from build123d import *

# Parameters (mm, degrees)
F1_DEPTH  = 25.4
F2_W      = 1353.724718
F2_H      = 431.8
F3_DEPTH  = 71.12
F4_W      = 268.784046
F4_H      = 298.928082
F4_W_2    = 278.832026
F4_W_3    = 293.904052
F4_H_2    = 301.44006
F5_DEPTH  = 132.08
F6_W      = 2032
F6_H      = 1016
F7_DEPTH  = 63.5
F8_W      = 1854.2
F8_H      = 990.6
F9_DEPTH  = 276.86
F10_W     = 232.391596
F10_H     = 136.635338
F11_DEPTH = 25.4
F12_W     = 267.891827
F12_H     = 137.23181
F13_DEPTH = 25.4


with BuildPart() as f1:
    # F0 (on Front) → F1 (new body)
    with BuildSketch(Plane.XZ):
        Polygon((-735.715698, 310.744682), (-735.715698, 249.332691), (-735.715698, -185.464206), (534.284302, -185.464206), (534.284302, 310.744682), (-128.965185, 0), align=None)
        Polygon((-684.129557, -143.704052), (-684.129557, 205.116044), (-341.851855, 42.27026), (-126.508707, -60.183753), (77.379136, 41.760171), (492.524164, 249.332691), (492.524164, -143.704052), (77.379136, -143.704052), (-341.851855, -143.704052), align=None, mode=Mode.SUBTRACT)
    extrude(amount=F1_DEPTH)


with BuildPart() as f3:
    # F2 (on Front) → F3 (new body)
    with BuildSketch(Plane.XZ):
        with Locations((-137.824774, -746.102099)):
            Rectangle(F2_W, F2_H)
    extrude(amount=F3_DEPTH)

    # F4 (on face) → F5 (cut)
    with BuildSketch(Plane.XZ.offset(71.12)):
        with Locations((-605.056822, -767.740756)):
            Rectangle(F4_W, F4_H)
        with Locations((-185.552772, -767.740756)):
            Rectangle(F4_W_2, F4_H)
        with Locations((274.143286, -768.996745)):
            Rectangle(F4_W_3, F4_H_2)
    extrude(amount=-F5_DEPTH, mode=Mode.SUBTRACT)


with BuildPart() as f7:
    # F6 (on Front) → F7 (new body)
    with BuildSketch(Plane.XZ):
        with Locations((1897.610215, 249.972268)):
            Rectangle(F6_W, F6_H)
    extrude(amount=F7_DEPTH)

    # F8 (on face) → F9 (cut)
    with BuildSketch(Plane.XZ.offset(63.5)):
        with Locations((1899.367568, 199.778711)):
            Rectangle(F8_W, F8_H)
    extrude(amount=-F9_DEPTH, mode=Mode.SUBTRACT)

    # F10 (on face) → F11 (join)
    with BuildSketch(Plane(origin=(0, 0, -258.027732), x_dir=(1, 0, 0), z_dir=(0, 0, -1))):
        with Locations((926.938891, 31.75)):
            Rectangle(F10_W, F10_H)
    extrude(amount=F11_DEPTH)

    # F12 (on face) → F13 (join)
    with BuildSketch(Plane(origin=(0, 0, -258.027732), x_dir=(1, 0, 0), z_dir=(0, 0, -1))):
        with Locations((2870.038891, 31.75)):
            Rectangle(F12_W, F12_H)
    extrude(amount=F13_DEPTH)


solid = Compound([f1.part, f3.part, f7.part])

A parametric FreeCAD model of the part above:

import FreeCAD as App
import Part
import Sketcher
Q = App.Units.Quantity


def add_polygon(sketch, points):
    """Adds a closed chain of lines whose ends are joined by coincident constraints."""
    first, n = sketch.GeometryCount, len(points)
    for a, b in zip(points, points[1:] + points[:1]):
        sketch.addGeometry(Part.LineSegment(App.Vector(*a, 0), App.Vector(*b, 0)), False)
    for i in range(n):
        sketch.addConstraint(Sketcher.Constraint("Coincident", first + i, 2, first + (i + 1) % n, 1))

doc = App.newDocument("Part")
body = doc.addObject("PartDesign::Body", "Body")

# Sketch on XZ plane
sketch1 = doc.addObject("Sketcher::SketchObject", "Sketch")
body.addObject(sketch1)
sketch1.AttachmentSupport = (doc.XZ_Plane, [""])
sketch1.MapMode = "FlatFace"
add_polygon(sketch1, [(-736, 311), (-736, -185), (534, -185), (534, 311), (-129, 0)])  # lines 0-4
add_polygon(sketch1, [(493, -144), (-684, -144), (-684, 205), (-342, 42), (-127, -60), (77, 42), (493, 249)])  # lines 5-11
sketch1.addConstraint(Sketcher.Constraint("Vertical", 0))
sketch1.addConstraint(Sketcher.Constraint("Horizontal", 1))
sketch1.addConstraint(Sketcher.Constraint("Vertical", 2))
sketch1.addConstraint(Sketcher.Constraint("Horizontal", 5))
sketch1.addConstraint(Sketcher.Constraint("Vertical", 6))
sketch1.addConstraint(Sketcher.Constraint("Vertical", 11))
sketch1.addConstraint(Sketcher.Constraint("PointOnObject", 3, 2, -1))
sketch1.addConstraint(Sketcher.Constraint("Parallel", 7, 8))
sketch1.addConstraint(Sketcher.Constraint("Parallel", 9, 10))
sketch1.addConstraint(Sketcher.Constraint("Horizontal", 2, 2, 4, 2))
sketch1.addConstraint(Sketcher.Constraint("DistanceX", 1, 1, 1, 2, Q("50 in")))
sketch1.addConstraint(Sketcher.Constraint("DistanceX", 6, 2, 7, 2, Q("13.4755001 in")))
sketch1.addConstraint(Sketcher.Constraint("DistanceX", 10, 2, 2, 2, Q("1.6440999 in")))
sketch1.addConstraint(Sketcher.Constraint("DistanceX", 5, 2, 5, 1, 1176.653721))
sketch1.addConstraint(Sketcher.Constraint("DistanceY", 0, 2, 0, 1, 496.208888))
sketch1.addConstraint(Sketcher.Constraint("DistanceX", 0, 2, -1, 1, 735.715698))
sketch1.addConstraint(Sketcher.Constraint("DistanceY", 5, 2, 8, 2, 83.520299))
sketch1.addConstraint(Sketcher.Constraint("Distance", 4, 681.695271))
sketch1.addConstraint(Sketcher.Constraint("Distance", 8, 238.473261))
sketch1.addConstraint(Sketcher.Constraint("Distance", 9, 227.953539))
sketch1.addConstraint(Sketcher.Constraint("DistanceY", 6, 1, 6, 2, 348.820096))
sketch1.addConstraint(Sketcher.Constraint("DistanceY", 11, 2, 11, 1, 393.036743))
sketch1.addConstraint(Sketcher.Constraint("DistanceY", -1, 1, 2, 2, 310.744682))
sketch1.addConstraint(Sketcher.Constraint("DistanceY", 5, 2, -1, 1, 143.704052))
pad1 = doc.addObject("PartDesign::Pad", "Pad")
body.addObject(pad1)
pad1.Profile = sketch1
pad1.Length = Q("1 in")
body2 = doc.addObject("PartDesign::Body", "Body001")

# Sketch on XZ plane
sketch2 = doc.addObject("Sketcher::SketchObject", "Sketch001")
body2.addObject(sketch2)
sketch2.AttachmentSupport = (doc.getObject("XZ_Plane001"), [""])
sketch2.MapMode = "FlatFace"
add_polygon(sketch2, [(-815, -530), (-815, -962), (539, -962), (539, -530)])  # lines 0-3
sketch2.addConstraint(Sketcher.Constraint("Vertical", 0))
sketch2.addConstraint(Sketcher.Constraint("Horizontal", 1))
sketch2.addConstraint(Sketcher.Constraint("Vertical", 2))
sketch2.addConstraint(Sketcher.Constraint("Horizontal", 3))
sketch2.addConstraint(Sketcher.Constraint("DistanceY", 0, 2, 0, 1, Q("17 in")))
sketch2.addConstraint(Sketcher.Constraint("DistanceX", 1, 1, 1, 2, 1353.724718))
sketch2.addConstraint(Sketcher.Constraint("DistanceY", 0, 2, -1, 1, 962.002099))
sketch2.addConstraint(Sketcher.Constraint("DistanceX", 0, 2, -1, 1, 814.687133))
pad2 = doc.addObject("PartDesign::Pad", "Pad001")
body2.addObject(pad2)
pad2.Profile = sketch2
pad2.Length = Q("2.8 in")

# Sketch on XZ plane
sketch3 = doc.addObject("Sketcher::SketchObject", "Sketch002")
body2.addObject(sketch3)
sketch3.AttachmentSupport = (doc.getObject("XZ_Plane001"), [""])
sketch3.MapMode = "FlatFace"
sketch3.AttachmentOffset = App.Placement(App.Vector(0, 0, 2.8 * 25.4), App.Rotation())
add_polygon(sketch3, [(-739, -618), (-739, -917), (-471, -917), (-471, -618)])  # lines 0-3
add_polygon(sketch3, [(-325, -618), (-325, -917), (-46, -917), (-46, -618)])  # lines 4-7
add_polygon(sketch3, [(127, -618), (127, -920), (421, -920), (421, -618)])  # lines 8-11
sketch3.addConstraint(Sketcher.Constraint("Vertical", 0))
sketch3.addConstraint(Sketcher.Constraint("Horizontal", 1))
sketch3.addConstraint(Sketcher.Constraint("Vertical", 2))
sketch3.addConstraint(Sketcher.Constraint("Horizontal", 3))
sketch3.addConstraint(Sketcher.Constraint("Vertical", 4))
sketch3.addConstraint(Sketcher.Constraint("Horizontal", 5))
sketch3.addConstraint(Sketcher.Constraint("Vertical", 6))
sketch3.addConstraint(Sketcher.Constraint("Horizontal", 7))
sketch3.addConstraint(Sketcher.Constraint("Vertical", 8))
sketch3.addConstraint(Sketcher.Constraint("Horizontal", 9))
sketch3.addConstraint(Sketcher.Constraint("Vertical", 10))
sketch3.addConstraint(Sketcher.Constraint("Horizontal", 11))
sketch3.addConstraint(Sketcher.Constraint("Horizontal", 1, 2, 4, 2))
sketch3.addConstraint(Sketcher.Constraint("Horizontal", 3, 2, 6, 2))
sketch3.addConstraint(Sketcher.Constraint("Horizontal", 7, 2, 10, 2))
sketch3.addConstraint(Sketcher.Constraint("DistanceX", 9, 1, 9, 2, 293.904052))
sketch3.addConstraint(Sketcher.Constraint("DistanceY", 0, 2, 0, 1, 298.928082))
sketch3.addConstraint(Sketcher.Constraint("DistanceY", 8, 2, 8, 1, 301.44006))
sketch3.addConstraint(Sketcher.Constraint("DistanceX", 1, 2, -1, 1, 470.664799))
sketch3.addConstraint(Sketcher.Constraint("DistanceX", 1, 1, 1, 2, 268.784046))
sketch3.addConstraint(Sketcher.Constraint("DistanceX", 5, 1, 5, 2, 278.832026))
sketch3.addConstraint(Sketcher.Constraint("DistanceX", 5, 2, -1, 1, 46.136759))
sketch3.addConstraint(Sketcher.Constraint("DistanceX", -1, 1, 8, 2, 127.19126))
sketch3.addConstraint(Sketcher.Constraint("DistanceY", 0, 2, -1, 1, 917.204797))
pocket1 = doc.addObject("PartDesign::Pocket", "Pocket")
body2.addObject(pocket1)
pocket1.Profile = sketch3
pocket1.Length = Q("5.2 in")
body3 = doc.addObject("PartDesign::Body", "Body002")

# Sketch on XZ plane
sketch4 = doc.addObject("Sketcher::SketchObject", "Sketch003")
body3.addObject(sketch4)
sketch4.AttachmentSupport = (doc.getObject("XZ_Plane002"), [""])
sketch4.MapMode = "FlatFace"
add_polygon(sketch4, [(882, 758), (882, -258), (2914, -258), (2914, 758)])  # lines 0-3
sketch4.addConstraint(Sketcher.Constraint("Vertical", 0))
sketch4.addConstraint(Sketcher.Constraint("Horizontal", 1))
sketch4.addConstraint(Sketcher.Constraint("Vertical", 2))
sketch4.addConstraint(Sketcher.Constraint("Horizontal", 3))
sketch4.addConstraint(Sketcher.Constraint("DistanceX", 1, 1, 1, 2, Q("80 in")))
sketch4.addConstraint(Sketcher.Constraint("DistanceY", 0, 2, 0, 1, Q("40 in")))
sketch4.addConstraint(Sketcher.Constraint("DistanceY", 0, 2, -1, 1, 258.027732))
sketch4.addConstraint(Sketcher.Constraint("DistanceX", -1, 1, 0, 2, 881.610215))
pad3 = doc.addObject("PartDesign::Pad", "Pad002")
body3.addObject(pad3)
pad3.Profile = sketch4
pad3.Length = Q("2.5 in")

# Sketch on XZ plane
sketch5 = doc.addObject("Sketcher::SketchObject", "Sketch004")
body3.addObject(sketch5)
sketch5.AttachmentSupport = (doc.getObject("XZ_Plane002"), [""])
sketch5.MapMode = "FlatFace"
sketch5.AttachmentOffset = App.Placement(App.Vector(0, 0, 2.5 * 25.4), App.Rotation())
add_polygon(sketch5, [(972, 695), (972, -296), (2826, -296), (2826, 695)])  # lines 0-3
sketch5.addConstraint(Sketcher.Constraint("Vertical", 0))
sketch5.addConstraint(Sketcher.Constraint("Horizontal", 1))
sketch5.addConstraint(Sketcher.Constraint("Vertical", 2))
sketch5.addConstraint(Sketcher.Constraint("Horizontal", 3))
sketch5.addConstraint(Sketcher.Constraint("DistanceX", 1, 1, 1, 2, Q("73 in")))
sketch5.addConstraint(Sketcher.Constraint("DistanceY", 0, 2, 0, 1, Q("39 in")))
sketch5.addConstraint(Sketcher.Constraint("DistanceX", -1, 1, 0, 2, 972.267568))
sketch5.addConstraint(Sketcher.Constraint("DistanceY", 0, 2, -1, 1, 295.521289))
pocket2 = doc.addObject("PartDesign::Pocket", "Pocket001")
body3.addObject(pocket2)
pocket2.Profile = sketch5
pocket2.Length = Q("10.9 in")

# Sketch on XY plane
sketch6 = doc.addObject("Sketcher::SketchObject", "Sketch005")
body3.addObject(sketch6)
sketch6.AttachmentSupport = (doc.getObject("XY_Plane002"), [""])
sketch6.MapMode = "FlatFace"
sketch6.AttachmentOffset = App.Placement(App.Vector(0, 0, -258.027732), App.Rotation())
add_polygon(sketch6, [(811, -100), (811, 37), (1043, 37), (1043, -100)])  # lines 0-3
sketch6.addConstraint(Sketcher.Constraint("Vertical", 0))
sketch6.addConstraint(Sketcher.Constraint("Horizontal", 1))
sketch6.addConstraint(Sketcher.Constraint("Vertical", 2))
sketch6.addConstraint(Sketcher.Constraint("Horizontal", 3))
sketch6.addConstraint(Sketcher.Constraint("DistanceX", 1, 1, 1, 2, 232.391596))
sketch6.addConstraint(Sketcher.Constraint("DistanceY", 0, 1, 0, 2, 136.635338))
sketch6.addConstraint(Sketcher.Constraint("DistanceY", -1, 1, 0, 2, 36.567669))
sketch6.addConstraint(Sketcher.Constraint("DistanceX", -1, 1, 1, 2, 1043.134689))
pad4 = doc.addObject("PartDesign::Pad", "Pad003")
body3.addObject(pad4)
pad4.Profile = sketch6
pad4.Length = Q("1 in")
pad4.Reversed = True

# Sketch on XY plane
sketch7 = doc.addObject("Sketcher::SketchObject", "Sketch006")
body3.addObject(sketch7)
sketch7.AttachmentSupport = (doc.getObject("XY_Plane002"), [""])
sketch7.MapMode = "FlatFace"
sketch7.AttachmentOffset = App.Placement(App.Vector(0, 0, -258.027732), App.Rotation())
add_polygon(sketch7, [(2736, -100), (2736, 37), (3004, 37), (3004, -100)])  # lines 0-3
sketch7.addConstraint(Sketcher.Constraint("Vertical", 0))
sketch7.addConstraint(Sketcher.Constraint("Horizontal", 1))
sketch7.addConstraint(Sketcher.Constraint("Vertical", 2))
sketch7.addConstraint(Sketcher.Constraint("Horizontal", 3))
sketch7.addConstraint(Sketcher.Constraint("DistanceY", 0, 1, 0, 2, 137.23181))
sketch7.addConstraint(Sketcher.Constraint("DistanceX", 1, 1, 1, 2, 267.891827))
sketch7.addConstraint(Sketcher.Constraint("DistanceX", -1, 1, 0, 2, 2736.092977))
sketch7.addConstraint(Sketcher.Constraint("DistanceY", -1, 1, 0, 2, 36.865905))
pad5 = doc.addObject("PartDesign::Pad", "Pad004")
body3.addObject(pad5)
pad5.Profile = sketch7
pad5.Length = Q("1 in")
pad5.Reversed = True

doc.recompute()
